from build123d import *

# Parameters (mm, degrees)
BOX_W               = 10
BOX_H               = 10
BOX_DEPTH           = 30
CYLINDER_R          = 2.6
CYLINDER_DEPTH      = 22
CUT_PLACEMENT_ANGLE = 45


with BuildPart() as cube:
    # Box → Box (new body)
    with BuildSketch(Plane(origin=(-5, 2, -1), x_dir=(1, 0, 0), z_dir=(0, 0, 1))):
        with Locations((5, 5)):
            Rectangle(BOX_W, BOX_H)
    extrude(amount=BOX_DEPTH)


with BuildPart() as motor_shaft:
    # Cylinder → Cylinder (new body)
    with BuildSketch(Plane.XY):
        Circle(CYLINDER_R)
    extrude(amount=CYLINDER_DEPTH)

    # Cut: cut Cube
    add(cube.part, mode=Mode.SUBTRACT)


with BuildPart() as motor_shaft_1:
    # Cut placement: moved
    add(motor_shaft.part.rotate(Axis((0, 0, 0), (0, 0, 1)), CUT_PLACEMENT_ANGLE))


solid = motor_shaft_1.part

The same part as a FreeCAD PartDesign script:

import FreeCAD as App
import Part
import Sketcher
from FreeCAD import Vector
Q = App.Units.Quantity

doc = App.newDocument("Part")
params = doc.addObject("Spreadsheet::Sheet", "Params")
for row, (alias, value) in enumerate([
    ("sketch1_width", "10 mm"),
    ("pad1_length", "30 mm"),
    ("sketch2_diameter", "5.2 mm"),
    ("pad2_length", "22 mm"),
], start=1):
    params.set(f"A{row}", alias)
    params.set(f"B{row}", "=" + value)
    params.setAlias(f"B{row}", alias)

body = doc.addObject("PartDesign::Body", "Body")

sketch1 = body.newObject("Sketcher::SketchObject", "Sketch")
sketch1.AttachmentSupport = (doc.getObject("XY_Plane"), [""])
sketch1.MapMode = "FlatFace"
sketch1.AttachmentOffset = App.Placement(Vector(0, 0, -1), App.Rotation())
sketch1.addGeometry(Part.LineSegment(Vector(-5, 12, 0), Vector(-5, 2, 0)), False)
sketch1.addGeometry(Part.LineSegment(Vector(-5, 2, 0), Vector(5, 2, 0)), False)
sketch1.addGeometry(Part.LineSegment(Vector(5, 2, 0), Vector(5, 12, 0)), False)
sketch1.addGeometry(Part.LineSegment(Vector(5, 12, 0), Vector(-5, 12, 0)), False)
sketch1.addConstraint(Sketcher.Constraint("Coincident", 0, 2, 1, 1))
sketch1.addConstraint(Sketcher.Constraint("Coincident", 1, 2, 2, 1))
sketch1.addConstraint(Sketcher.Constraint("Coincident", 2, 2, 3, 1))
sketch1.addConstraint(Sketcher.Constraint("Coincident", 3, 2, 0, 1))
sketch1.addConstraint(Sketcher.Constraint("Vertical", 0))
sketch1.addConstraint(Sketcher.Constraint("Horizontal", 1))
sketch1.addConstraint(Sketcher.Constraint("Vertical", 2))
sketch1.addConstraint(Sketcher.Constraint("Horizontal", 3))
sketch1.addConstraint(Sketcher.Constraint("Equal", 3, 0))
sketch1.addConstraint(Sketcher.Constraint("DistanceX", 1, 1, 1, 2, Q("10 mm")))
sketch1.addConstraint(Sketcher.Constraint("DistanceX", 0, 2, -1, 1, Q("5 mm")))
sketch1.addConstraint(Sketcher.Constraint("DistanceY", -1, 1, 0, 2, Q("2 mm")))
sketch1.setExpression("Constraints[9]", "Params.sketch1_width")
pad1 = body.newObject("PartDesign::Pad", "Pad")
pad1.Profile = sketch1
pad1.setExpression("Length", "Params.pad1_length")
body2 = doc.addObject("PartDesign::Body", "Body001")

sketch2 = body2.newObject("Sketcher::SketchObject", "Sketch001")
sketch2.AttachmentSupport = (doc.getObject("XY_Plane001"), [""])
sketch2.MapMode = "FlatFace"
sketch2.addGeometry(Part.Circle(Vector(0, 0, 0), Vector(0, 0, 1), 2.6), False)
sketch2.addConstraint(Sketcher.Constraint("Coincident", 0, 3, -1, 1))
sketch2.addConstraint(Sketcher.Constraint("Diameter", 0, Q("5.2 mm")))
sketch2.setExpression("Constraints[1]", "Params.sketch2_diameter")
pad2 = body2.newObject("PartDesign::Pad", "Pad001")
pad2.Profile = sketch2
pad2.setExpression("Length", "Params.pad2_length")
doc.recompute()

boolean = body2.newObject("PartDesign::Boolean", "Boolean")
boolean.Type = "Cut"
boolean.addObjects([body])
body3 = doc.addObject("PartDesign::Body", "Body002")
doc.recompute()

body2.Placement = App.Placement(Vector(0, 0, 0), App.Rotation(Vector(0, 0, 1), 45))
boolean2 = body3.newObject("PartDesign::Boolean", "Boolean001")
boolean2.Type = "Fuse"
boolean2.addObjects([body2])

doc.recompute()
